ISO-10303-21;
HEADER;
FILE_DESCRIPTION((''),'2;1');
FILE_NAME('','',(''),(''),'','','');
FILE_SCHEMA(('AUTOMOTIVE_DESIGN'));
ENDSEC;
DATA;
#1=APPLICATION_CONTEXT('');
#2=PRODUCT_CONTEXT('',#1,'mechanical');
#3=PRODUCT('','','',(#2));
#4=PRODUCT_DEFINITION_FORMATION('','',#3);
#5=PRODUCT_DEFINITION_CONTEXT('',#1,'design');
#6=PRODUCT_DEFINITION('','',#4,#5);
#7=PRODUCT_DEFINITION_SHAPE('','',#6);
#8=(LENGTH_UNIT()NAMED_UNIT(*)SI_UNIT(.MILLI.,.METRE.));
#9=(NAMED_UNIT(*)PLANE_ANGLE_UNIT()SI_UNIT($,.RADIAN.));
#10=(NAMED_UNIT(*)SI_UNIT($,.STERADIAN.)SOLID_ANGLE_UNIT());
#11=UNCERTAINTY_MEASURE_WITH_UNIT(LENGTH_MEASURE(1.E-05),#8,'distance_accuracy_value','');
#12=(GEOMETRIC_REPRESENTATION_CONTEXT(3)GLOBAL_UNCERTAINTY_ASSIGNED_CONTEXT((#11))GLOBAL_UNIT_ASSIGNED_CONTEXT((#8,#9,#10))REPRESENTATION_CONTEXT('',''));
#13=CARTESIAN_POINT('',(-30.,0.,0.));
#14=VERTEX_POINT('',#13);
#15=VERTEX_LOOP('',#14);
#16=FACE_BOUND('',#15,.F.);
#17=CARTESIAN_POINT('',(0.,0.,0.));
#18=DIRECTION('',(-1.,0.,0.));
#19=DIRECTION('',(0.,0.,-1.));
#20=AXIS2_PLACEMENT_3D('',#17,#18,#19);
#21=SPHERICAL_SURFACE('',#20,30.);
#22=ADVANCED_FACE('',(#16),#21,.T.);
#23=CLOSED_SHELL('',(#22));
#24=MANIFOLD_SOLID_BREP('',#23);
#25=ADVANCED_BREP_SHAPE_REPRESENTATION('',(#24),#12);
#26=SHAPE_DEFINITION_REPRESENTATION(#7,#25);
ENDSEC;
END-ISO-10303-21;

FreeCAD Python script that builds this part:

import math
import FreeCAD as App
import Part
import Sketcher
from FreeCAD import Vector

doc = App.newDocument("Part")
params = doc.addObject("Spreadsheet::Sheet", "Params")
for row, (alias, value) in enumerate([
    ("sketch1_radius", "30 mm"),
    ("revolution_angle", "360 deg"),
], start=1):
    params.set(f"A{row}", alias)
    params.set(f"B{row}", "=" + value)
    params.setAlias(f"B{row}", alias)

body = doc.addObject("PartDesign::Body", "Body")

# Sketch on XZ plane
sketch1 = body.newObject("Sketcher::SketchObject", "Sketch")
sketch1.AttachmentSupport = (doc.getObject("XZ_Plane"), [""])
sketch1.MapMode = "FlatFace"
sketch1.addGeometry([
    Part.LineSegment(Vector(-30, 0, 0), Vector(30, 0, 0)),
    Part.ArcOfCircle(Part.Circle(Vector(0, 0, 0), Vector(0, 0, 1), 30), math.radians(180), math.radians(360)),
], False)
sketch1.addConstraint([
    Sketcher.Constraint("Coincident", 0, 1, 1, 1),
    Sketcher.Constraint("Coincident", 1, 2, 0, 2),
    Sketcher.Constraint("Horizontal", 0),
    Sketcher.Constraint("Coincident", 1, 3, -1, 1),
    Sketcher.Constraint("PointOnObject", 0, 1, -1),
    Sketcher.Constraint("Radius", 1, 30.0),
])
sketch1.setExpression("Constraints[5]", "Params.sketch1_radius")
revolution = body.newObject("PartDesign::Revolution", "Revolution")
revolution.Profile = sketch1
revolution.ReferenceAxis = (sketch1, ["H_Axis"])
revolution.setExpression("Angle", "Params.revolution_angle")

doc.recompute()
